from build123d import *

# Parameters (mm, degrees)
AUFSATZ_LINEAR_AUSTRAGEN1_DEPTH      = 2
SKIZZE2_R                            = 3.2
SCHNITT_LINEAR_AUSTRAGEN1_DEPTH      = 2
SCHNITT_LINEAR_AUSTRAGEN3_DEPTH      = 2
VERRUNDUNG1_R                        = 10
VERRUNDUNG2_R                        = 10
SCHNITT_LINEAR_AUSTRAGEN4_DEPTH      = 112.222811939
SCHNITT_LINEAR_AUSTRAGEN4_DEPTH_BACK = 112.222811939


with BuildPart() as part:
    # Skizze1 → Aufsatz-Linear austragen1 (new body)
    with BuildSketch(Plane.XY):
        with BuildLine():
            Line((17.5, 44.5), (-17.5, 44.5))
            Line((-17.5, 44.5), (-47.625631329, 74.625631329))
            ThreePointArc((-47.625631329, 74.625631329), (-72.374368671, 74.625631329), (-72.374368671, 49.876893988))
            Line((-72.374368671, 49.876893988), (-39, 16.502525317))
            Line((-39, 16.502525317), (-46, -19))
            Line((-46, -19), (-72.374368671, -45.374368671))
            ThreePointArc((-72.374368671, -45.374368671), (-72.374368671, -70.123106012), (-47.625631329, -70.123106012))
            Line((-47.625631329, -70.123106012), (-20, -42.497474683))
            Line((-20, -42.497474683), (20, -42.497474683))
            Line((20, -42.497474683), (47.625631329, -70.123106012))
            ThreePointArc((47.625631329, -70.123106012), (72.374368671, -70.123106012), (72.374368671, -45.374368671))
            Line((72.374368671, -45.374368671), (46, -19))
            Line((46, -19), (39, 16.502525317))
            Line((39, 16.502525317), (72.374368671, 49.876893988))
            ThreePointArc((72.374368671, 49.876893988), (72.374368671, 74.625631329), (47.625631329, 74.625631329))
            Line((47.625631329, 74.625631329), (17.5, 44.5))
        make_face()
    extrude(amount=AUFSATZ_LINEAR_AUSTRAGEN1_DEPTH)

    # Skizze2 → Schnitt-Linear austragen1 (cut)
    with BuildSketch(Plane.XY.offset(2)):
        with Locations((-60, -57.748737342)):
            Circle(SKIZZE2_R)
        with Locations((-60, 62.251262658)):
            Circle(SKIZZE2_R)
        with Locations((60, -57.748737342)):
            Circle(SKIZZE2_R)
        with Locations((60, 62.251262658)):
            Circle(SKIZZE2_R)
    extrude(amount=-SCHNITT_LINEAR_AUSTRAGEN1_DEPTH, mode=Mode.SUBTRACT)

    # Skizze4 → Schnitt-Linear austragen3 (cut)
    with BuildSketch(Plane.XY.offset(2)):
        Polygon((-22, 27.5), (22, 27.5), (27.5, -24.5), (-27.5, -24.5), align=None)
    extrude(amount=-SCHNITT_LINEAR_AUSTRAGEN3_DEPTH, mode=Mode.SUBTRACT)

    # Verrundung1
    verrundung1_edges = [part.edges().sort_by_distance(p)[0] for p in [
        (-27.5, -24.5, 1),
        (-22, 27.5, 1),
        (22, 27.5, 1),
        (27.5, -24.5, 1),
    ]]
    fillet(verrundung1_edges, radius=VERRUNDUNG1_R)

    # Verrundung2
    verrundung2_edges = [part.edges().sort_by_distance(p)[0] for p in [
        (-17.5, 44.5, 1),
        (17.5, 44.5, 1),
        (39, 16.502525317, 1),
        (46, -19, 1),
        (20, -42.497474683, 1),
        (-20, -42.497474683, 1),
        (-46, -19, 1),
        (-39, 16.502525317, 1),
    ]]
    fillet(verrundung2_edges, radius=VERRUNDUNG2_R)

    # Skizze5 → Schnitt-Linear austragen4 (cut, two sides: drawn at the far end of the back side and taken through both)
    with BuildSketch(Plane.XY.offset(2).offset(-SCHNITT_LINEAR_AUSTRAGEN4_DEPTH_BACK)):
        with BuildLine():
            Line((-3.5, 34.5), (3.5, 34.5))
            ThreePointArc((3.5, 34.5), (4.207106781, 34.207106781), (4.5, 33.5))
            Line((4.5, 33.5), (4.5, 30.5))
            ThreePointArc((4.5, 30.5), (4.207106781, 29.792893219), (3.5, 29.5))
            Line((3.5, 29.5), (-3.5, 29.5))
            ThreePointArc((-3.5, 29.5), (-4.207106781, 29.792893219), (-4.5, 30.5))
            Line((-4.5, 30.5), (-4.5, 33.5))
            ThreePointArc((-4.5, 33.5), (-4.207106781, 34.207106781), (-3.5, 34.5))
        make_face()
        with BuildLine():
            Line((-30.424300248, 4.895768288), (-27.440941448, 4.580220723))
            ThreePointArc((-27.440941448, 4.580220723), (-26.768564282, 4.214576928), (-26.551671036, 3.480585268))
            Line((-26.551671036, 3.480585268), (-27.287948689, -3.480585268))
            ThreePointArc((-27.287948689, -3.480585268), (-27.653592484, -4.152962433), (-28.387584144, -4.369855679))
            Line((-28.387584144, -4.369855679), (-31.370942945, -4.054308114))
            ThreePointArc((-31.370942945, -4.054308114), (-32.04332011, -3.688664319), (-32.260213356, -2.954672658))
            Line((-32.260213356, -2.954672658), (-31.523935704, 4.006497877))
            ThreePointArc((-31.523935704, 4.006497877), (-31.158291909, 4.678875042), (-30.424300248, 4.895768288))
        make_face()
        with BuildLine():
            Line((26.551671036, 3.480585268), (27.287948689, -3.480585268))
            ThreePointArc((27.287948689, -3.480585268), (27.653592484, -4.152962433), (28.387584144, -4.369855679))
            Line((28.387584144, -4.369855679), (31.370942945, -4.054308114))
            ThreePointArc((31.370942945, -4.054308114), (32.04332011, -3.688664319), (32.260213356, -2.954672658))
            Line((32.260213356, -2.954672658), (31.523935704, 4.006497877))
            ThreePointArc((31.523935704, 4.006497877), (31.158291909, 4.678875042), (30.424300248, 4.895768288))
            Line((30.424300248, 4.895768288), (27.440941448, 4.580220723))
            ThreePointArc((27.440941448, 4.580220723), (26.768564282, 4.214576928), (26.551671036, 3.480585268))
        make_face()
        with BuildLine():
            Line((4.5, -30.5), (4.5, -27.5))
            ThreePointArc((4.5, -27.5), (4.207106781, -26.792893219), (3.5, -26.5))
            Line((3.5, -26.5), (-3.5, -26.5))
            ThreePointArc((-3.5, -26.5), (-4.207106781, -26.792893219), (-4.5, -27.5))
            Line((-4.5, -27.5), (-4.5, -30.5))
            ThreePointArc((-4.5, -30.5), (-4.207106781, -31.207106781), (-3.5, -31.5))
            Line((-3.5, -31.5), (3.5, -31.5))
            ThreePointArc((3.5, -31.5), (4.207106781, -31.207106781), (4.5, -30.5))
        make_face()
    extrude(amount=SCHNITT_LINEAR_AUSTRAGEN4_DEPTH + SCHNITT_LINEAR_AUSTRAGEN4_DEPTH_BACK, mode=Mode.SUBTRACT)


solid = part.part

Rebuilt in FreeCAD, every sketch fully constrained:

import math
import FreeCAD as App
import Part
import Sketcher
from FreeCAD import Vector
Q = App.Units.Quantity


def edges_at(feature, points):
    """Names of the edges that pass closest to the given points."""
    edges = feature.Shape.Edges
    near = lambda p: min(range(len(edges)), key=lambda i: edges[i].distToShape(Part.Vertex(*p))[0])
    return sorted({f"Edge{near(p) + 1}" for p in points})


def add_polygon(sketch, points):
    """Adds a closed chain of lines whose ends are joined by coincident constraints."""
    first, n = sketch.GeometryCount, len(points)
    for a, b in zip(points, points[1:] + points[:1]):
        sketch.addGeometry(Part.LineSegment(App.Vector(*a, 0), App.Vector(*b, 0)), False)
    for i in range(n):
        sketch.addConstraint(Sketcher.Constraint("Coincident", first + i, 2, first + (i + 1) % n, 1))

doc = App.newDocument("Part")
body = doc.addObject("PartDesign::Body", "Body")

# Sketch on XY plane
sketch1 = body.newObject("Sketcher::SketchObject", "Sketch")
sketch1.AttachmentSupport = (doc.getObject("XY_Plane"), [""])
sketch1.MapMode = "FlatFace"
sketch1.addGeometry(Part.LineSegment(Vector(18, 44, 0), Vector(-18, 44, 0)), False)
sketch1.addGeometry(Part.LineSegment(Vector(-18, 44, 0), Vector(-48, 75, 0)), False)
sketch1.addGeometry(Part.ArcOfCircle(Part.Circle(Vector(-60, 62, 0), Vector(0, 0, 1), 18), math.radians(45), math.radians(225)), False)
sketch1.addGeometry(Part.LineSegment(Vector(-72, 50, 0), Vector(-39, 17, 0)), False)
sketch1.addGeometry(Part.LineSegment(Vector(-39, 17, 0), Vector(-46, -19, 0)), False)
sketch1.addGeometry(Part.LineSegment(Vector(-46, -19, 0), Vector(-72, -45, 0)), False)
sketch1.addGeometry(Part.ArcOfCircle(Part.Circle(Vector(-60, -58, 0), Vector(0, 0, 1), 18), math.radians(135), math.radians(315)), False)
sketch1.addGeometry(Part.LineSegment(Vector(-48, -70, 0), Vector(-20, -42, 0)), False)
sketch1.addGeometry(Part.LineSegment(Vector(-20, -42, 0), Vector(20, -42, 0)), False)
sketch1.addGeometry(Part.LineSegment(Vector(20, -42, 0), Vector(48, -70, 0)), False)
sketch1.addGeometry(Part.ArcOfCircle(Part.Circle(Vector(60, -58, 0), Vector(0, 0, 1), 18), math.radians(-135), math.radians(45)), False)
sketch1.addGeometry(Part.LineSegment(Vector(72, -45, 0), Vector(46, -19, 0)), False)
sketch1.addGeometry(Part.LineSegment(Vector(46, -19, 0), Vector(39, 17, 0)), False)
sketch1.addGeometry(Part.LineSegment(Vector(39, 17, 0), Vector(72, 50, 0)), False)
sketch1.addGeometry(Part.ArcOfCircle(Part.Circle(Vector(60, 62, 0), Vector(0, 0, 1), 18), math.radians(-45), math.radians(135)), False)
sketch1.addGeometry(Part.LineSegment(Vector(48, 75, 0), Vector(18, 44, 0)), False)
sketch1.addConstraint(Sketcher.Constraint("Coincident", 0, 2, 1, 1))
sketch1.addConstraint(Sketcher.Constraint("Tangent", 1, 2, 2, 1))
sketch1.addConstraint(Sketcher.Constraint("Tangent", 2, 2, 3, 1))
sketch1.addConstraint(Sketcher.Constraint("Coincident", 3, 2, 4, 1))
sketch1.addConstraint(Sketcher.Constraint("Coincident", 4, 2, 5, 1))
sketch1.addConstraint(Sketcher.Constraint("Tangent", 5, 2, 6, 1))
sketch1.addConstraint(Sketcher.Constraint("Tangent", 6, 2, 7, 1))
sketch1.addConstraint(Sketcher.Constraint("Coincident", 7, 2, 8, 1))
sketch1.addConstraint(Sketcher.Constraint("Coincident", 8, 2, 9, 1))
sketch1.addConstraint(Sketcher.Constraint("Tangent", 9, 2, 10, 1))
sketch1.addConstraint(Sketcher.Constraint("Tangent", 10, 2, 11, 1))
sketch1.addConstraint(Sketcher.Constraint("Coincident", 11, 2, 12, 1))
sketch1.addConstraint(Sketcher.Constraint("Coincident", 12, 2, 13, 1))
sketch1.addConstraint(Sketcher.Constraint("Tangent", 13, 2, 14, 1))
sketch1.addConstraint(Sketcher.Constraint("Tangent", 14, 2, 15, 1))
sketch1.addConstraint(Sketcher.Constraint("Coincident", 15, 2, 0, 1))
sketch1.addConstraint(Sketcher.Constraint("Horizontal", 0))
sketch1.addConstraint(Sketcher.Constraint("Horizontal", 8))
sketch1.addConstraint(Sketcher.Constraint("Equal", 2, 6))
sketch1.addConstraint(Sketcher.Constraint("Equal", 6, 10))
sketch1.addConstraint(Sketcher.Constraint("Equal", 10, 14))
sketch1.addConstraint(Sketcher.Constraint("Symmetric", 6, 3, 10, 3, -2))
sketch1.addConstraint(Sketcher.Constraint("Symmetric", 2, 3, 14, 3, -2))
sketch1.addConstraint(Sketcher.Constraint("Symmetric", 4, 2, 11, 2, -2))
sketch1.addConstraint(Sketcher.Constraint("Symmetric", 3, 2, 12, 2, -2))
sketch1.addConstraint(Sketcher.Constraint("Parallel", 1, 3))
sketch1.addConstraint(Sketcher.Constraint("Perpendicular", 3, 5))
sketch1.addConstraint(Sketcher.Constraint("Parallel", 5, 7))
sketch1.addConstraint(Sketcher.Constraint("Perpendicular", 7, 9))
sketch1.addConstraint(Sketcher.Constraint("Parallel", 9, 11))
sketch1.addConstraint(Sketcher.Constraint("Parallel", 13, 15))
sketch1.addConstraint(Sketcher.Constraint("Vertical", 2, 3, 6, 3))
sketch1.addConstraint(Sketcher.Constraint("Radius", 2, Q("17.5 mm")))
sketch1.addConstraint(Sketcher.Constraint("DistanceX", 0, 2, 0, 1, Q("35 mm")))
sketch1.addConstraint(Sketcher.Constraint("DistanceX", 8, 1, 8, 2, Q("40 mm")))
sketch1.addConstraint(Sketcher.Constraint("DistanceX", 2, 3, -1, 1, Q("60 mm")))
sketch1.addConstraint(Sketcher.Constraint("DistanceX", 3, 2, -1, 1, Q("39 mm")))
sketch1.addConstraint(Sketcher.Constraint("DistanceX", 4, 2, -1, 1, Q("46 mm")))
sketch1.addConstraint(Sketcher.Constraint("DistanceY", 4, 2, -1, 1, Q("19 mm")))
sketch1.addConstraint(Sketcher.Constraint("DistanceY", 6, 3, 2, 3, Q("120 mm")))
pad1 = body.newObject("PartDesign::Pad", "Pad")
pad1.Profile = sketch1
pad1.Length = 2

# Sketch on XY plane
sketch2 = body.newObject("Sketcher::SketchObject", "Sketch001")
sketch2.AttachmentSupport = (doc.getObject("XY_Plane"), [""])
sketch2.MapMode = "FlatFace"
sketch2.AttachmentOffset = App.Placement(Vector(0, 0, 2), App.Rotation())
sketch2.addGeometry(Part.Circle(Vector(-60, -57.7, 0), Vector(0, 0, 1), 3.2), False)
sketch2.addGeometry(Part.Circle(Vector(-60, 62.3, 0), Vector(0, 0, 1), 3.2), False)
sketch2.addGeometry(Part.Circle(Vector(60, -57.7, 0), Vector(0, 0, 1), 3.2), False)
sketch2.addGeometry(Part.Circle(Vector(60, 62.3, 0), Vector(0, 0, 1), 3.2), False)
sketch2.addConstraint(Sketcher.Constraint("Equal", 0, 1))
sketch2.addConstraint(Sketcher.Constraint("Equal", 1, 2))
sketch2.addConstraint(Sketcher.Constraint("Equal", 2, 3))
sketch2.addConstraint(Sketcher.Constraint("Symmetric", 0, 3, 2, 3, -2))
sketch2.addConstraint(Sketcher.Constraint("Symmetric", 1, 3, 3, 3, -2))
sketch2.addConstraint(Sketcher.Constraint("Vertical", 0, 3, 1, 3))
sketch2.addConstraint(Sketcher.Constraint("Diameter", 0, Q("6.4 mm")))
sketch2.addConstraint(Sketcher.Constraint("DistanceX", 0, 3, -1, 1, Q("60 mm")))
sketch2.addConstraint(Sketcher.Constraint("DistanceY", 0, 3, 1, 3, Q("120 mm")))
sketch2.addConstraint(Sketcher.Constraint("DistanceY", 0, 3, -1, 1, Q("57.748737 mm")))
pocket1 = body.newObject("PartDesign::Pocket", "Pocket")
pocket1.Profile = sketch2
pocket1.Length = 2

# Sketch on XY plane
sketch3 = body.newObject("Sketcher::SketchObject", "Sketch002")
sketch3.AttachmentSupport = (doc.getObject("XY_Plane"), [""])
sketch3.MapMode = "FlatFace"
sketch3.AttachmentOffset = App.Placement(Vector(0, 0, 2), App.Rotation())
add_polygon(sketch3, [(22, 28), (-22, 28), (-28, -24), (28, -24)])  # lines 0-3
sketch3.addConstraint(Sketcher.Constraint("Horizontal", 0))
sketch3.addConstraint(Sketcher.Constraint("Horizontal", 2))
sketch3.addConstraint(Sketcher.Constraint("Equal", 1, 3))
sketch3.addConstraint(Sketcher.Constraint("DistanceX", 0, 2, 0, 1, Q("44 mm")))
sketch3.addConstraint(Sketcher.Constraint("DistanceX", 2, 1, 2, 2, Q("55 mm")))
sketch3.addConstraint(Sketcher.Constraint("DistanceX", 0, 2, -1, 1, Q("22 mm")))
sketch3.addConstraint(Sketcher.Constraint("DistanceY", 1, 2, 0, 2, Q("52 mm")))
sketch3.addConstraint(Sketcher.Constraint("DistanceY", -1, 1, 0, 2, Q("27.5 mm")))
pocket2 = body.newObject("PartDesign::Pocket", "Pocket001")
pocket2.Profile = sketch3
pocket2.Length = 2
doc.recompute()

fillet = body.newObject("PartDesign::Fillet", "Fillet")
fillet.Base = (pocket2, edges_at(pocket2, [
    (-27.5, -24.5, 1),
    (-22, 27.5, 1),
    (22, 27.5, 1),
    (27.5, -24.5, 1),
]))
fillet.Radius = 10
doc.recompute()

fillet2 = body.newObject("PartDesign::Fillet", "Fillet001")
fillet2.Base = (fillet, edges_at(fillet, [
    (-17.5, 44.5, 1),
    (17.5, 44.5, 1),
    (39, 16.503, 1),
    (46, -19, 1),
    (20, -42.497, 1),
    (-20, -42.497, 1),
    (-46, -19, 1),
    (-39, 16.503, 1),
]))
fillet2.Radius = 10

# Sketch on XY plane
sketch4 = body.newObject("Sketcher::SketchObject", "Sketch003")
sketch4.AttachmentSupport = (doc.getObject("XY_Plane"), [""])
sketch4.MapMode = "FlatFace"
sketch4.AttachmentOffset = App.Placement(Vector(0, 0, 2), App.Rotation())
sketch4.addGeometry(Part.LineSegment(Vector(3.5, 34.5, 0), Vector(-3.5, 34.5, 0)), False)
sketch4.addGeometry(Part.ArcOfCircle(Part.Circle(Vector(-3.5, 33.5, 0), Vector(0, 0, 1), 1), math.radians(90), math.radians(180)), False)
sketch4.addGeometry(Part.LineSegment(Vector(-4.5, 33.5, 0), Vector(-4.5, 30.5, 0)), False)
sketch4.addGeometry(Part.ArcOfCircle(Part.Circle(Vector(-3.5, 30.5, 0), Vector(0, 0, 1), 1), math.radians(-180), math.radians(-90)), False)
sketch4.addGeometry(Part.LineSegment(Vector(-3.5, 29.5, 0), Vector(3.5, 29.5, 0)), False)
sketch4.addGeometry(Part.ArcOfCircle(Part.Circle(Vector(3.5, 30.5, 0), Vector(0, 0, 1), 1), math.radians(-90), math.radians(0)), False)
sketch4.addGeometry(Part.LineSegment(Vector(4.5, 30.5, 0), Vector(4.5, 33.5, 0)), False)
sketch4.addGeometry(Part.ArcOfCircle(Part.Circle(Vector(3.5, 33.5, 0), Vector(0, 0, 1), 1), math.radians(0), math.radians(90)), False)
sketch4.addGeometry(Part.LineSegment(Vector(-27.4, 4.6, 0), Vector(-30.4, 4.9, 0)), False)
sketch4.addGeometry(Part.ArcOfCircle(Part.Circle(Vector(-30.5, 3.9, 0), Vector(0, 0, 1), 1), math.radians(84), math.radians(174)), False)
sketch4.addGeometry(Part.LineSegment(Vector(-31.5, 4, 0), Vector(-32.3, -3, 0)), False)
sketch4.addGeometry(Part.ArcOfCircle(Part.Circle(Vector(-31.3, -3.1, 0), Vector(0, 0, 1), 1), math.radians(174), math.radians(264)), False)
sketch4.addGeometry(Part.LineSegment(Vector(-31.4, -4.1, 0), Vector(-28.4, -4.4, 0)), False)
sketch4.addGeometry(Part.ArcOfCircle(Part.Circle(Vector(-28.3, -3.4, 0), Vector(0, 0, 1), 1), math.radians(-96), math.radians(-6)), False)
sketch4.addGeometry(Part.LineSegment(Vector(-27.3, -3.5, 0), Vector(-26.6, 3.5, 0)), False)
sketch4.addGeometry(Part.ArcOfCircle(Part.Circle(Vector(-27.5, 3.6, 0), Vector(0, 0, 1), 1), math.radians(-6), math.radians(84)), False)
sketch4.addGeometry(Part.LineSegment(Vector(26.6, 3.5, 0), Vector(27.3, -3.5, 0)), False)
sketch4.addGeometry(Part.ArcOfCircle(Part.Circle(Vector(28.3, -3.4, 0), Vector(0, 0, 1), 1), math.radians(-174), math.radians(-84)), False)
sketch4.addGeometry(Part.LineSegment(Vector(28.4, -4.4, 0), Vector(31.4, -4.1, 0)), False)
sketch4.addGeometry(Part.ArcOfCircle(Part.Circle(Vector(31.3, -3.1, 0), Vector(0, 0, 1), 1), math.radians(-84), math.radians(6)), False)
sketch4.addGeometry(Part.LineSegment(Vector(32.3, -3, 0), Vector(31.5, 4, 0)), False)
sketch4.addGeometry(Part.ArcOfCircle(Part.Circle(Vector(30.5, 3.9, 0), Vector(0, 0, 1), 1), math.radians(6), math.radians(96)), False)
sketch4.addGeometry(Part.LineSegment(Vector(30.4, 4.9, 0), Vector(27.4, 4.6, 0)), False)
sketch4.addGeometry(Part.ArcOfCircle(Part.Circle(Vector(27.5, 3.6, 0), Vector(0, 0, 1), 1), math.radians(96), math.radians(186)), False)
sketch4.addGeometry(Part.LineSegment(Vector(4.5, -30.5, 0), Vector(4.5, -27.5, 0)), False)
sketch4.addGeometry(Part.ArcOfCircle(Part.Circle(Vector(3.5, -27.5, 0), Vector(0, 0, 1), 1), math.radians(0), math.radians(90)), False)
sketch4.addGeometry(Part.LineSegment(Vector(3.5, -26.5, 0), Vector(-3.5, -26.5, 0)), False)
sketch4.addGeometry(Part.ArcOfCircle(Part.Circle(Vector(-3.5, -27.5, 0), Vector(0, 0, 1), 1), math.radians(90), math.radians(180)), False)
sketch4.addGeometry(Part.LineSegment(Vector(-4.5, -27.5, 0), Vector(-4.5, -30.5, 0)), False)
sketch4.addGeometry(Part.ArcOfCircle(Part.Circle(Vector(-3.5, -30.5, 0), Vector(0, 0, 1), 1), math.radians(-180), math.radians(-90)), False)
sketch4.addGeometry(Part.LineSegment(Vector(-3.5, -31.5, 0), Vector(3.5, -31.5, 0)), False)
sketch4.addGeometry(Part.ArcOfCircle(Part.Circle(Vector(3.5, -30.5, 0), Vector(0, 0, 1), 1), math.radians(-90), math.radians(0)), False)
sketch4.addConstraint(Sketcher.Constraint("Tangent", 0, 2, 1, 1))
sketch4.addConstraint(Sketcher.Constraint("Tangent", 1, 2, 2, 1))
sketch4.addConstraint(Sketcher.Constraint("Tangent", 2, 2, 3, 1))
sketch4.addConstraint(Sketcher.Constraint("Tangent", 3, 2, 4, 1))
sketch4.addConstraint(Sketcher.Constraint("Tangent", 4, 2, 5, 1))
sketch4.addConstraint(Sketcher.Constraint("Tangent", 5, 2, 6, 1))
sketch4.addConstraint(Sketcher.Constraint("Tangent", 6, 2, 7, 1))
sketch4.addConstraint(Sketcher.Constraint("Tangent", 7, 2, 0, 1))
sketch4.addConstraint(Sketcher.Constraint("Tangent", 8, 2, 9, 1))
sketch4.addConstraint(Sketcher.Constraint("Tangent", 9, 2, 10, 1))
sketch4.addConstraint(Sketcher.Constraint("Tangent", 10, 2, 11, 1))
sketch4.addConstraint(Sketcher.Constraint("Tangent", 11, 2, 12, 1))
sketch4.addConstraint(Sketcher.Constraint("Tangent", 12, 2, 13, 1))
sketch4.addConstraint(Sketcher.Constraint("Tangent", 13, 2, 14, 1))
sketch4.addConstraint(Sketcher.Constraint("Tangent", 14, 2, 15, 1))
sketch4.addConstraint(Sketcher.Constraint("Tangent", 15, 2, 8, 1))
sketch4.addConstraint(Sketcher.Constraint("Tangent", 16, 2, 17, 1))
sketch4.addConstraint(Sketcher.Constraint("Tangent", 17, 2, 18, 1))
sketch4.addConstraint(Sketcher.Constraint("Tangent", 18, 2, 19, 1))
sketch4.addConstraint(Sketcher.Constraint("Tangent", 19, 2, 20, 1))
sketch4.addConstraint(Sketcher.Constraint("Tangent", 20, 2, 21, 1))
sketch4.addConstraint(Sketcher.Constraint("Tangent", 21, 2, 22, 1))
sketch4.addConstraint(Sketcher.Constraint("Tangent", 22, 2, 23, 1))
sketch4.addConstraint(Sketcher.Constraint("Tangent", 23, 2, 16, 1))
sketch4.addConstraint(Sketcher.Constraint("Tangent", 24, 2, 25, 1))
sketch4.addConstraint(Sketcher.Constraint("Tangent", 25, 2, 26, 1))
sketch4.addConstraint(Sketcher.Constraint("Tangent", 26, 2, 27, 1))
sketch4.addConstraint(Sketcher.Constraint("Tangent", 27, 2, 28, 1))
sketch4.addConstraint(Sketcher.Constraint("Tangent", 28, 2, 29, 1))
sketch4.addConstraint(Sketcher.Constraint("Tangent", 29, 2, 30, 1))
sketch4.addConstraint(Sketcher.Constraint("Tangent", 30, 2, 31, 1))
sketch4.addConstraint(Sketcher.Constraint("Tangent", 31, 2, 24, 1))
sketch4.addConstraint(Sketcher.Constraint("Horizontal", 0))
sketch4.addConstraint(Sketcher.Constraint("Vertical", 2))
sketch4.addConstraint(Sketcher.Constraint("Horizontal", 4))
sketch4.addConstraint(Sketcher.Constraint("Vertical", 6))
sketch4.addConstraint(Sketcher.Constraint("Vertical", 24))
sketch4.addConstraint(Sketcher.Constraint("Horizontal", 26))
sketch4.addConstraint(Sketcher.Constraint("Vertical", 28))
sketch4.addConstraint(Sketcher.Constraint("Horizontal", 30))
sketch4.addConstraint(Sketcher.Constraint("Equal", 1, 3))
sketch4.addConstraint(Sketcher.Constraint("Equal", 3, 5))
sketch4.addConstraint(Sketcher.Constraint("Equal", 5, 7))
sketch4.addConstraint(Sketcher.Constraint("Equal", 7, 9))
sketch4.addConstraint(Sketcher.Constraint("Equal", 9, 11))
sketch4.addConstraint(Sketcher.Constraint("Equal", 11, 13))
sketch4.addConstraint(Sketcher.Constraint("Equal", 13, 15))
sketch4.addConstraint(Sketcher.Constraint("Equal", 15, 17))
sketch4.addConstraint(Sketcher.Constraint("Equal", 17, 19))
sketch4.addConstraint(Sketcher.Constraint("Equal", 19, 21))
sketch4.addConstraint(Sketcher.Constraint("Equal", 21, 23))
sketch4.addConstraint(Sketcher.Constraint("Equal", 23, 25))
sketch4.addConstraint(Sketcher.Constraint("Equal", 25, 27))
sketch4.addConstraint(Sketcher.Constraint("Equal", 27, 29))
sketch4.addConstraint(Sketcher.Constraint("Equal", 29, 31))
sketch4.addConstraint(Sketcher.Constraint("Symmetric", 5, 3, 29, 3, -1, 1))
sketch4.addConstraint(Sketcher.Constraint("Symmetric", 13, 3, 17, 3, -2))
sketch4.addConstraint(Sketcher.Constraint("Symmetric", 11, 3, 19, 3, -2))
sketch4.addConstraint(Sketcher.Constraint("Symmetric", 9, 3, 21, 3, -2))
sketch4.addConstraint(Sketcher.Constraint("Symmetric", 15, 3, 23, 3, -2))
sketch4.addConstraint(Sketcher.Constraint("Perpendicular", 8, 10))
sketch4.addConstraint(Sketcher.Constraint("Perpendicular", 10, 12))
sketch4.addConstraint(Sketcher.Constraint("Perpendicular", 12, 14))
sketch4.addConstraint(Sketcher.Constraint("Vertical", 7, 3, 25, 3))
sketch4.addConstraint(Sketcher.Constraint("Vertical", 3, 3, 27, 3))
sketch4.addConstraint(Sketcher.Constraint("Equal", 6, 24))
sketch4.addConstraint(Sketcher.Constraint("Radius", 1, Q("1 mm")))
sketch4.addConstraint(Sketcher.Constraint("DistanceX", 0, 2, 0, 1, Q("7 mm")))
sketch4.addConstraint(Sketcher.Constraint("DistanceY", 2, 2, 2, 1, Q("3 mm")))
sketch4.addConstraint(Sketcher.Constraint("Distance", 8, Q("3 mm")))
sketch4.addConstraint(Sketcher.Constraint("Distance", 10, Q("7 mm")))
sketch4.addConstraint(Sketcher.Constraint("DistanceY", -1, 1, 1, 3, Q("33.5 mm")))
sketch4.addConstraint(Sketcher.Constraint("DistanceY", 15, 3, 8, 2, Q("1.31 mm")))
sketch4.addConstraint(Sketcher.Constraint("DistanceX", 13, 3, -1, 1, Q("28.282402 mm")))
sketch4.addConstraint(Sketcher.Constraint("DistanceY", -1, 1, 8, 2, Q("4.895768 mm")))
pocket3 = body.newObject("PartDesign::Pocket", "Pocket002")
pocket3.Profile = sketch4
pocket3.Type = "ThroughAll"
pocket3.Midplane = True

doc.recompute()
